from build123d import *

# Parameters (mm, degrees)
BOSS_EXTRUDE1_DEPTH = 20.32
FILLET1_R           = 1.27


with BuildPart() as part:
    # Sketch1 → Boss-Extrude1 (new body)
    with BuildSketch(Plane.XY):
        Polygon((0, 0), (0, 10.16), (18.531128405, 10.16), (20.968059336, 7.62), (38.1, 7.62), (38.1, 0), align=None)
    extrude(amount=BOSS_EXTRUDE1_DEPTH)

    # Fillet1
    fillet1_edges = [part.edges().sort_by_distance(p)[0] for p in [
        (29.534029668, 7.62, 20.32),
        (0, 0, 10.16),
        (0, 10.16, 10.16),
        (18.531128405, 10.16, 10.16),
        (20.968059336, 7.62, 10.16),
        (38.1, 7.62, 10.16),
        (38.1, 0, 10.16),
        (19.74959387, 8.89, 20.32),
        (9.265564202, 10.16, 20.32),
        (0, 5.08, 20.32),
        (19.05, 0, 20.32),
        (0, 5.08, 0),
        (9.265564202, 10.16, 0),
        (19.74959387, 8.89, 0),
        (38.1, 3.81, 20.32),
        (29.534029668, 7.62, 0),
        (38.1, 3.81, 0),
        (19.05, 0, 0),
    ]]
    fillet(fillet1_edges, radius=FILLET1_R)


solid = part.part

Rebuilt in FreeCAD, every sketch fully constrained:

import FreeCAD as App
import Part
import Sketcher
Q = App.Units.Quantity


def add_polygon(sketch, points):
    """Adds a closed chain of lines whose ends are joined by coincident constraints."""
    first, n = sketch.GeometryCount, len(points)
    for a, b in zip(points, points[1:] + points[:1]):
        sketch.addGeometry(Part.LineSegment(App.Vector(*a, 0), App.Vector(*b, 0)), False)
    for i in range(n):
        sketch.addConstraint(Sketcher.Constraint("Coincident", first + i, 2, first + (i + 1) % n, 1))

doc = App.newDocument("Part")
params = doc.addObject("Spreadsheet::Sheet", "Params")
for row, (alias, value) in enumerate([
    ("sketch1_width", "1.5 in"),
    ("sketch1_height", "0.4 in"),
    ("sketch1_height2", "0.3 in"),
    ("pad1_length", "0.8 in"),
    ("fillet_radius", "0.05 in"),
], start=1):
    params.set(f"A{row}", alias)
    params.set(f"B{row}", "=" + value)
    params.setAlias(f"B{row}", alias)

body = doc.addObject("PartDesign::Body", "Body")

# Sketch on XY plane
sketch1 = doc.addObject("Sketcher::SketchObject", "Sketch")
body.addObject(sketch1)
sketch1.AttachmentSupport = (doc.XY_Plane, [""])
sketch1.MapMode = "FlatFace"
add_polygon(sketch1, [(0, 10.16), (0, 0), (38.1, 0), (38.1, 7.62), (20.968059, 7.62), (18.531128, 10.16)])  # lines 0-5
sketch1.addConstraint([
    Sketcher.Constraint("Vertical", 0),
    Sketcher.Constraint("Horizontal", 1),
    Sketcher.Constraint("Vertical", 2),
    Sketcher.Constraint("Horizontal", 3),
    Sketcher.Constraint("Horizontal", 5),
    Sketcher.Constraint("Coincident", 0, 2, -1, 1),
    Sketcher.Constraint("DistanceX", 1, 1, 1, 2, Q("1.5 in")),
    Sketcher.Constraint("DistanceY", 0, 2, 0, 1, Q("0.4 in")),
    Sketcher.Constraint("DistanceY", 2, 1, 2, 2, Q("0.3 in")),
    Sketcher.Constraint("DistanceX", 3, 2, 3, 1, 17.131941),
    Sketcher.Constraint("DistanceX", 5, 2, 5, 1, 18.531128),
])
sketch1.setExpression("Constraints[12]", "Params.sketch1_width")
sketch1.setExpression("Constraints[13]", "Params.sketch1_height")
sketch1.setExpression("Constraints[14]", "Params.sketch1_height2")
pad1 = doc.addObject("PartDesign::Pad", "Pad")
body.addObject(pad1)
pad1.Profile = sketch1
pad1.setExpression("Length", "Params.pad1_length")
doc.recompute()

fillet = doc.addObject("PartDesign::Fillet", "Fillet")
body.addObject(fillet)
fillet.Base = (pad1, ["Edge1"])
fillet.UseAllEdges = True
fillet.setExpression("Radius", "Params.fillet_radius")

doc.recompute()
